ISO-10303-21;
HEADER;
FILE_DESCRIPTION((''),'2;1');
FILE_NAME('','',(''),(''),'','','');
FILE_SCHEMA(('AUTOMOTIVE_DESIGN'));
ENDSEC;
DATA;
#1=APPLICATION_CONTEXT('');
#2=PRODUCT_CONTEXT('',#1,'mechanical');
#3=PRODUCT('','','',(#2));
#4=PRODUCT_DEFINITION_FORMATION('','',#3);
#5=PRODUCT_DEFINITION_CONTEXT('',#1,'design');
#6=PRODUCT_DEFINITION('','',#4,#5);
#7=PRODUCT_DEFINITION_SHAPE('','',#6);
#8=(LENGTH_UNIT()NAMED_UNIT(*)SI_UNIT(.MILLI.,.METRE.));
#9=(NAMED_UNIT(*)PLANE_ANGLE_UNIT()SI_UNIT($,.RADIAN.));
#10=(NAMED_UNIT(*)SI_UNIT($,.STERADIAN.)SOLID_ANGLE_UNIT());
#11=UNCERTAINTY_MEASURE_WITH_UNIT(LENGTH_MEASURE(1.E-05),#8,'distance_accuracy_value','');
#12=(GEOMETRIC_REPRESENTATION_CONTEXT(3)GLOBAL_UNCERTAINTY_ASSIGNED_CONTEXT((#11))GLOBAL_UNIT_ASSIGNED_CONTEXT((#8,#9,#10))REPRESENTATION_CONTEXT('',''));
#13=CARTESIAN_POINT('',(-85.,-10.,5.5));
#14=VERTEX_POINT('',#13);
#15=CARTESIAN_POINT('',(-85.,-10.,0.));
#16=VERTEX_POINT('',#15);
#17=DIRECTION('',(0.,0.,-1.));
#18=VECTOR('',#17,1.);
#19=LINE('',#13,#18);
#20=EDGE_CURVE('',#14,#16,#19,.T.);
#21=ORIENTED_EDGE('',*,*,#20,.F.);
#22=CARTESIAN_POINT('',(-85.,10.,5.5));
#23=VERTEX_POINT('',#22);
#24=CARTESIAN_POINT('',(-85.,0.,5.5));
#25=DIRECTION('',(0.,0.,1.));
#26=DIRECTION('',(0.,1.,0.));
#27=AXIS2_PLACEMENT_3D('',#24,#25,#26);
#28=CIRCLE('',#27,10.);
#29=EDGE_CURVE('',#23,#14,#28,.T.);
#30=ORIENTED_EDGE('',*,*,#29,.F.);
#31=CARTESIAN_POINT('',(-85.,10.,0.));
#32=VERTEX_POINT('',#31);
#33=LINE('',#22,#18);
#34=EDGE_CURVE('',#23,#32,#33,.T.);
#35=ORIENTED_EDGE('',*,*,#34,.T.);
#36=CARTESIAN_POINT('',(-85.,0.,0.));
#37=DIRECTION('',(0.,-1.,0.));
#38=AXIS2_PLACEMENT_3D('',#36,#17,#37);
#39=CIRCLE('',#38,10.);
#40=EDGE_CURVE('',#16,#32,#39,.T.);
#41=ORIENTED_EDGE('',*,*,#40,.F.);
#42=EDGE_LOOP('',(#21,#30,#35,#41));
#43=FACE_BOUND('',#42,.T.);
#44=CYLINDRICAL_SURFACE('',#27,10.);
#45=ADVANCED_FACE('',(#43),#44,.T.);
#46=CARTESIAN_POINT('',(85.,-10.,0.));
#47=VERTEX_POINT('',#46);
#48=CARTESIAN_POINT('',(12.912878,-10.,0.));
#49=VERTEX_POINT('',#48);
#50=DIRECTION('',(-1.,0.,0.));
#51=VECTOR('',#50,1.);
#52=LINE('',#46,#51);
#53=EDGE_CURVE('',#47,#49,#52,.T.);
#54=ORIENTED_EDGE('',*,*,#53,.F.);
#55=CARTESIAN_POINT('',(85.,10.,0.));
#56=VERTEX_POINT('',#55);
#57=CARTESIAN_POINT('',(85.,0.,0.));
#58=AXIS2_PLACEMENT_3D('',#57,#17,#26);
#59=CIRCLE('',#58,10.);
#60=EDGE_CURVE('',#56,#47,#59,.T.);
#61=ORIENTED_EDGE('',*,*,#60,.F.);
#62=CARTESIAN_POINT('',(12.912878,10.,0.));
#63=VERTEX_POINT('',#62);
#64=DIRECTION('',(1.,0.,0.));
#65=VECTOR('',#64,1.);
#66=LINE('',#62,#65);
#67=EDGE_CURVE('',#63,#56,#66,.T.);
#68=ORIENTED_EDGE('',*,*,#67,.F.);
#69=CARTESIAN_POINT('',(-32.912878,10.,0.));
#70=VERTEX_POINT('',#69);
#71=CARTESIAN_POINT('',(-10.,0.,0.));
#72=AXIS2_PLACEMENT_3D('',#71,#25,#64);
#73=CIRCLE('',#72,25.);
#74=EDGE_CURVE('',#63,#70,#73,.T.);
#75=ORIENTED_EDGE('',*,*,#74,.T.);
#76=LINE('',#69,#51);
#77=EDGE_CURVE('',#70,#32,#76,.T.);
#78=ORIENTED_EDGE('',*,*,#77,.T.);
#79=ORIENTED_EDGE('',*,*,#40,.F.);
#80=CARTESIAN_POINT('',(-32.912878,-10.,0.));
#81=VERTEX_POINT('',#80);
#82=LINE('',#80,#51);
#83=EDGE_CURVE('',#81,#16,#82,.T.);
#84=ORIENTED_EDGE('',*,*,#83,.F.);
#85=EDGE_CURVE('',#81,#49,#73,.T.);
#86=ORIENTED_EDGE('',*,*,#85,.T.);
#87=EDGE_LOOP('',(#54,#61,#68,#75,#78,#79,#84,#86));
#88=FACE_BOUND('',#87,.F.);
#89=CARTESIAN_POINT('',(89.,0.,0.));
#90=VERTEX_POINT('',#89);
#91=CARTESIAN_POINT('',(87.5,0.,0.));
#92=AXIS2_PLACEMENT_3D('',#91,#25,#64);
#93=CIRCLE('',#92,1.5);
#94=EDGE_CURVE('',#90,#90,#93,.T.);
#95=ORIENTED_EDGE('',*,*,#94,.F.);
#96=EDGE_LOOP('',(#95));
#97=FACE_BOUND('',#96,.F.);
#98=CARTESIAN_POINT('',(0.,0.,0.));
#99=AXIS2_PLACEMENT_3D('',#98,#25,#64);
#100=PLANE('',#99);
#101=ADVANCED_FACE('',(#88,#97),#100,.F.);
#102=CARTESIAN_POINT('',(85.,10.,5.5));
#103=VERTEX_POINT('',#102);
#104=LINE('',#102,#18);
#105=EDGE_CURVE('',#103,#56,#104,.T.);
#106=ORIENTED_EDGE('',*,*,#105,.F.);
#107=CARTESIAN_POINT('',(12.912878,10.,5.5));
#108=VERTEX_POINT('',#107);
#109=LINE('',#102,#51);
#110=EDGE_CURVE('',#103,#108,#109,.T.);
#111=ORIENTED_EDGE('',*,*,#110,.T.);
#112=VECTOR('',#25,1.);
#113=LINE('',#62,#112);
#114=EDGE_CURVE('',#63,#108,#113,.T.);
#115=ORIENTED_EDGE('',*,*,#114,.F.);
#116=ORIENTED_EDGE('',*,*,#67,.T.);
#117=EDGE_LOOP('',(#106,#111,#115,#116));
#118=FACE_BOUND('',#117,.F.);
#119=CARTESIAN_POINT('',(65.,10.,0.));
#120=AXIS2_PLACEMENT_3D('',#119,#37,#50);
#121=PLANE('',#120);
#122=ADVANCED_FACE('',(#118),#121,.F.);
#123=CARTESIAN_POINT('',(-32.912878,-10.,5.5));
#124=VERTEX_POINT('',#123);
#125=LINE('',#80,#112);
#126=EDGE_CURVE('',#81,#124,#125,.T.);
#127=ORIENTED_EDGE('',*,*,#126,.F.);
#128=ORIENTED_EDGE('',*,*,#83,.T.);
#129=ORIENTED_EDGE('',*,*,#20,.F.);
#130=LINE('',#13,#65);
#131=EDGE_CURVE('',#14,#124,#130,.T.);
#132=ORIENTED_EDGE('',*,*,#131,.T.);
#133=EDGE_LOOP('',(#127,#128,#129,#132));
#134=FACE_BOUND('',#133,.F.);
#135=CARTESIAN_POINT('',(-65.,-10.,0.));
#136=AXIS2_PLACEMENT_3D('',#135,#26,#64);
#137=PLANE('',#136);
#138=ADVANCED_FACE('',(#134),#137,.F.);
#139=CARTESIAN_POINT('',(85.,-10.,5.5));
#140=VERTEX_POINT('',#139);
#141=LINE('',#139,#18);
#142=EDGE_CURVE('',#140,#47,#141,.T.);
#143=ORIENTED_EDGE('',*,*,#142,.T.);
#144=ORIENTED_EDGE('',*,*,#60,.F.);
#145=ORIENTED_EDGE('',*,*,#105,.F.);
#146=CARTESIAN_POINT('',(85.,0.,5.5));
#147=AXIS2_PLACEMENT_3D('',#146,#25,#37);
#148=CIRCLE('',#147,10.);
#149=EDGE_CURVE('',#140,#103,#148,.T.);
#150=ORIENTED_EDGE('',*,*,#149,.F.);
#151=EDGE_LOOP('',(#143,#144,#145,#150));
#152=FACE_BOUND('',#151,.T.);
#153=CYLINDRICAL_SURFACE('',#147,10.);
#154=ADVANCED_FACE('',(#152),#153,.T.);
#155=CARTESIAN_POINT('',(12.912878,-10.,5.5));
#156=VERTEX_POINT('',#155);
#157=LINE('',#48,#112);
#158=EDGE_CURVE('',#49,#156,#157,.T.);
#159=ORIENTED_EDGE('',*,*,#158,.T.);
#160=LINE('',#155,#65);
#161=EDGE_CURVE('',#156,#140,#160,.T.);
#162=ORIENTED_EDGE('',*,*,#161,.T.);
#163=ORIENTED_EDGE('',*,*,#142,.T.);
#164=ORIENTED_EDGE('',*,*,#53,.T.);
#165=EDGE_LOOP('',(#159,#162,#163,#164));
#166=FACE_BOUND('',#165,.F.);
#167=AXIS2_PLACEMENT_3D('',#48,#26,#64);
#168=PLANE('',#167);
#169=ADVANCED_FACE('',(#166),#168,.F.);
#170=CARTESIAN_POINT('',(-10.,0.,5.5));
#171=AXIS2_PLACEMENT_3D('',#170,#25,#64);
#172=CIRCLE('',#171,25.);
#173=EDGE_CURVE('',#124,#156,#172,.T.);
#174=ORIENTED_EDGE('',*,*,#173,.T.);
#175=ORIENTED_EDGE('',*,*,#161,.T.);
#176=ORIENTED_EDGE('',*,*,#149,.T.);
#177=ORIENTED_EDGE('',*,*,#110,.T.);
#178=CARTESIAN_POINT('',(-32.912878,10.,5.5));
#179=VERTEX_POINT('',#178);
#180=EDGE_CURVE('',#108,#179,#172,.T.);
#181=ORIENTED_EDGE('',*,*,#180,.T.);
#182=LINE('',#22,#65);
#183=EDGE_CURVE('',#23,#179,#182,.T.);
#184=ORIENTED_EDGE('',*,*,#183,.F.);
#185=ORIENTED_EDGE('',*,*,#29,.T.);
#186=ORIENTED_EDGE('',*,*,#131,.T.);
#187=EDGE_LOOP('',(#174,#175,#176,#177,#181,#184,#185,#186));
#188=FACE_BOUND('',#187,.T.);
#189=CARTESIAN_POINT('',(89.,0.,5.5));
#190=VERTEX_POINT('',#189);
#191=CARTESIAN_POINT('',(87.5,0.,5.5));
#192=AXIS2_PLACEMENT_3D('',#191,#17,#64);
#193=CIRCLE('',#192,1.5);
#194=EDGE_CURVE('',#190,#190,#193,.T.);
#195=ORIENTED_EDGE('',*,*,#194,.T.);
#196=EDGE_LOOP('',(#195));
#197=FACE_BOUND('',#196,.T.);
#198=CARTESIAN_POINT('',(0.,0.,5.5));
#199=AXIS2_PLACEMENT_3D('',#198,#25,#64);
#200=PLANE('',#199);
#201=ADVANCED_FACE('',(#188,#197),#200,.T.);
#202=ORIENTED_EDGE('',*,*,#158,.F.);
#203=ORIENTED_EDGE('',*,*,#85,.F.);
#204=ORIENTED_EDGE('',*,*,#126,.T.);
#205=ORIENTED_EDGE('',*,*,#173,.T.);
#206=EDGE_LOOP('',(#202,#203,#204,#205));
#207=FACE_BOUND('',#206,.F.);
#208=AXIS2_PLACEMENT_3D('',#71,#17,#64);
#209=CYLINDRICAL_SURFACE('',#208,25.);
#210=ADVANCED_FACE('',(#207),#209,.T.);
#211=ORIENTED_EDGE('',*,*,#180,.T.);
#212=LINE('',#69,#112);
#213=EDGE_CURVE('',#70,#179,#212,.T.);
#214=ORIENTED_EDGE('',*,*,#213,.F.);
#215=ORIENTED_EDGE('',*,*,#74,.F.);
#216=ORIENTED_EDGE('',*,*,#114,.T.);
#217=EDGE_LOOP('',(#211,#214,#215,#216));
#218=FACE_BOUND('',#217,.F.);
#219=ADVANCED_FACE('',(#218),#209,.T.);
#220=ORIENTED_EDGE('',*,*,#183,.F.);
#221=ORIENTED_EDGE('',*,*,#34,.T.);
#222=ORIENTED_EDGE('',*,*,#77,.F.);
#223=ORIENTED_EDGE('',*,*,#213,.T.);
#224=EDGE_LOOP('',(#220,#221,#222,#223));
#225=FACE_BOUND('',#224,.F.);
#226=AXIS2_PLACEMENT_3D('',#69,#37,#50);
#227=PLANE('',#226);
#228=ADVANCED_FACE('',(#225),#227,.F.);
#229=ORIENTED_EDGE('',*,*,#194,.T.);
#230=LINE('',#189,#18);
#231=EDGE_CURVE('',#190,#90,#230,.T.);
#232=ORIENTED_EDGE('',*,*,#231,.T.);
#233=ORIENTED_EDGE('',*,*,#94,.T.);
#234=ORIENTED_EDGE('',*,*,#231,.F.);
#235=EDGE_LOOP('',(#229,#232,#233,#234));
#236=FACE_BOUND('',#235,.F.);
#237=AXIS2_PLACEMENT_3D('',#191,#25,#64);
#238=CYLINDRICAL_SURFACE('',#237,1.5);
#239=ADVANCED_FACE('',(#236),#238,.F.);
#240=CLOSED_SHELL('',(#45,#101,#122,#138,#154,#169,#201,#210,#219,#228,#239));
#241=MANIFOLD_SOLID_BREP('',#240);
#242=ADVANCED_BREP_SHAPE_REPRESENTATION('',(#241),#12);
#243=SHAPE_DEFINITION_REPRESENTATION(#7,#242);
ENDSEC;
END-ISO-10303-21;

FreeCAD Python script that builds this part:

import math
import FreeCAD as App
import Part
import Sketcher
from FreeCAD import Vector

doc = App.newDocument("Part")
params = doc.addObject("Spreadsheet::Sheet", "Params")
for row, (alias, value) in enumerate([
    ("sketch1_radius", "25 mm"),
    ("sketch1_height", "20 mm"),
    ("pad1_length", "5.5 mm"),
    ("sketch2_diameter", "3 mm"),
    ("sketch2_radius", "10 mm"),
    ("pad2_length", "5.5 mm"),
    ("sketch3_radius", "10 mm"),
    ("pad3_length", "5.5 mm"),
], start=1):
    params.set(f"A{row}", alias)
    params.set(f"B{row}", "=" + value)
    params.setAlias(f"B{row}", alias)

body = doc.addObject("PartDesign::Body", "Body")

# Sketch on XY plane
sketch1 = body.newObject("Sketcher::SketchObject", "Sketch")
sketch1.AttachmentSupport = (doc.getObject("XY_Plane"), [""])
sketch1.MapMode = "FlatFace"
sketch1.addGeometry([
    Part.LineSegment(Vector(-65, 10, 0), Vector(-65, -10, 0)),  # 0
    Part.LineSegment(Vector(-65, -10, 0), Vector(-33, -10, 0)),  # 1
    Part.ArcOfCircle(Part.Circle(Vector(-10, 0, 0), Vector(0, 0, 1), 25), math.radians(-156), math.radians(-24)),  # 2
    Part.LineSegment(Vector(13, -10, 0), Vector(65, -10, 0)),  # 3
    Part.LineSegment(Vector(65, -10, 0), Vector(65, 10, 0)),  # 4
    Part.LineSegment(Vector(65, 10, 0), Vector(13, 10, 0)),  # 5
    Part.ArcOfCircle(Part.Circle(Vector(-10, 0, 0), Vector(0, 0, 1), 25), math.radians(24), math.radians(156)),  # 6
    Part.LineSegment(Vector(-33, 10, 0), Vector(-65, 10, 0)),  # 7
], False)
sketch1.addConstraint([
    Sketcher.Constraint("Coincident", 0, 2, 1, 1),
    Sketcher.Constraint("Coincident", 1, 2, 2, 1),
    Sketcher.Constraint("Coincident", 2, 2, 3, 1),
    Sketcher.Constraint("Coincident", 3, 2, 4, 1),
    Sketcher.Constraint("Coincident", 4, 2, 5, 1),
    Sketcher.Constraint("Coincident", 5, 2, 6, 1),
    Sketcher.Constraint("Coincident", 6, 2, 7, 1),
    Sketcher.Constraint("Coincident", 7, 2, 0, 1),
    Sketcher.Constraint("Vertical", 0),
    Sketcher.Constraint("Horizontal", 1),
    Sketcher.Constraint("Horizontal", 3),
    Sketcher.Constraint("Vertical", 4),
    Sketcher.Constraint("Horizontal", 5),
    Sketcher.Constraint("Horizontal", 7),
    Sketcher.Constraint("Coincident", 6, 3, 2, 3),
    Sketcher.Constraint("Equal", 2, 6),
    Sketcher.Constraint("Symmetric", 0, 2, 4, 2, -1, 1),
    Sketcher.Constraint("Symmetric", 2, 2, 5, 2, -1),
    Sketcher.Constraint("Horizontal", 5, 2, 6, 2),
    Sketcher.Constraint("Radius", 2, 25.0),
    Sketcher.Constraint("DistanceY", 0, 2, 0, 1, 20.0),
    Sketcher.Constraint("DistanceX", 0, 2, 3, 2, 130.0),
    Sketcher.Constraint("DistanceX", 2, 3, -1, 1, 10.0),
])
sketch1.setExpression("Constraints[19]", "Params.sketch1_radius")
sketch1.setExpression("Constraints[20]", "Params.sketch1_height")
pad1 = body.newObject("PartDesign::Pad", "Pad")
pad1.Profile = sketch1
pad1.setExpression("Length", "Params.pad1_length")

# Sketch on XY plane
sketch2 = body.newObject("Sketcher::SketchObject", "Sketch001")
sketch2.AttachmentSupport = (doc.getObject("XY_Plane"), [""])
sketch2.MapMode = "FlatFace"
sketch2.AttachmentOffset = App.Placement(Vector(0, 0, 5.5), App.Rotation())
sketch2.addGeometry([
    Part.LineSegment(Vector(65, -10, 0), Vector(85, -10, 0)),  # 0
    Part.ArcOfCircle(Part.Circle(Vector(85, 0, 0), Vector(0, 0, 1), 10), math.radians(-90), math.radians(90)),  # 1
    Part.LineSegment(Vector(85, 10, 0), Vector(65, 10, 0)),  # 2
    Part.LineSegment(Vector(65, 10, 0), Vector(65, -10, 0)),  # 3
    Part.Circle(Vector(87.5, 0, 0), Vector(0, 0, 1), 1.5),  # 4
], False)
sketch2.addConstraint([
    Sketcher.Constraint("Tangent", 0, 2, 1, 1),
    Sketcher.Constraint("Tangent", 1, 2, 2, 1),
    Sketcher.Constraint("Coincident", 2, 2, 3, 1),
    Sketcher.Constraint("Coincident", 3, 2, 0, 1),
    Sketcher.Constraint("Horizontal", 0),
    Sketcher.Constraint("Horizontal", 2),
    Sketcher.Constraint("Vertical", 3),
    Sketcher.Constraint("PointOnObject", 1, 3, -1),
    Sketcher.Constraint("PointOnObject", 4, 3, -1),
    Sketcher.Constraint("Equal", 2, 3),
    Sketcher.Constraint("Diameter", 4, 3.0),
    Sketcher.Constraint("Radius", 1, 10.0),
    Sketcher.Constraint("DistanceX", -1, 1, 1, 3, 85.0),
    Sketcher.Constraint("DistanceX", -1, 1, 4, 3, 87.5),
])
sketch2.setExpression("Constraints[10]", "Params.sketch2_diameter")
sketch2.setExpression("Constraints[11]", "Params.sketch2_radius")
pad2 = body.newObject("PartDesign::Pad", "Pad001")
pad2.Profile = sketch2
pad2.setExpression("Length", "Params.pad2_length")
pad2.Reversed = True

# Sketch on XY plane
sketch3 = body.newObject("Sketcher::SketchObject", "Sketch002")
sketch3.AttachmentSupport = (doc.getObject("XY_Plane"), [""])
sketch3.MapMode = "FlatFace"
sketch3.AttachmentOffset = App.Placement(Vector(0, 0, 5.5), App.Rotation())
sketch3.addGeometry([
    Part.LineSegment(Vector(-65, 10, 0), Vector(-85, 10, 0)),
    Part.ArcOfCircle(Part.Circle(Vector(-85, 0, 0), Vector(0, 0, 1), 10), math.radians(90), math.radians(270)),
    Part.LineSegment(Vector(-85, -10, 0), Vector(-65, -10, 0)),
    Part.LineSegment(Vector(-65, -10, 0), Vector(-65, 10, 0)),
], False)
sketch3.addConstraint([
    Sketcher.Constraint("Tangent", 0, 2, 1, 1),
    Sketcher.Constraint("Tangent", 1, 2, 2, 1),
    Sketcher.Constraint("Coincident", 2, 2, 3, 1),
    Sketcher.Constraint("Coincident", 3, 2, 0, 1),
    Sketcher.Constraint("Horizontal", 0),
    Sketcher.Constraint("Horizontal", 2),
    Sketcher.Constraint("Vertical", 3),
    Sketcher.Constraint("PointOnObject", 1, 3, -1),
    Sketcher.Constraint("Equal", 2, 3),
    Sketcher.Constraint("Radius", 1, 10.0),
    Sketcher.Constraint("DistanceX", 1, 3, -1, 1, 85.0),
])
sketch3.setExpression("Constraints[9]", "Params.sketch3_radius")
pad3 = body.newObject("PartDesign::Pad", "Pad002")
pad3.Profile = sketch3
pad3.setExpression("Length", "Params.pad3_length")
pad3.Reversed = True

doc.recompute()
